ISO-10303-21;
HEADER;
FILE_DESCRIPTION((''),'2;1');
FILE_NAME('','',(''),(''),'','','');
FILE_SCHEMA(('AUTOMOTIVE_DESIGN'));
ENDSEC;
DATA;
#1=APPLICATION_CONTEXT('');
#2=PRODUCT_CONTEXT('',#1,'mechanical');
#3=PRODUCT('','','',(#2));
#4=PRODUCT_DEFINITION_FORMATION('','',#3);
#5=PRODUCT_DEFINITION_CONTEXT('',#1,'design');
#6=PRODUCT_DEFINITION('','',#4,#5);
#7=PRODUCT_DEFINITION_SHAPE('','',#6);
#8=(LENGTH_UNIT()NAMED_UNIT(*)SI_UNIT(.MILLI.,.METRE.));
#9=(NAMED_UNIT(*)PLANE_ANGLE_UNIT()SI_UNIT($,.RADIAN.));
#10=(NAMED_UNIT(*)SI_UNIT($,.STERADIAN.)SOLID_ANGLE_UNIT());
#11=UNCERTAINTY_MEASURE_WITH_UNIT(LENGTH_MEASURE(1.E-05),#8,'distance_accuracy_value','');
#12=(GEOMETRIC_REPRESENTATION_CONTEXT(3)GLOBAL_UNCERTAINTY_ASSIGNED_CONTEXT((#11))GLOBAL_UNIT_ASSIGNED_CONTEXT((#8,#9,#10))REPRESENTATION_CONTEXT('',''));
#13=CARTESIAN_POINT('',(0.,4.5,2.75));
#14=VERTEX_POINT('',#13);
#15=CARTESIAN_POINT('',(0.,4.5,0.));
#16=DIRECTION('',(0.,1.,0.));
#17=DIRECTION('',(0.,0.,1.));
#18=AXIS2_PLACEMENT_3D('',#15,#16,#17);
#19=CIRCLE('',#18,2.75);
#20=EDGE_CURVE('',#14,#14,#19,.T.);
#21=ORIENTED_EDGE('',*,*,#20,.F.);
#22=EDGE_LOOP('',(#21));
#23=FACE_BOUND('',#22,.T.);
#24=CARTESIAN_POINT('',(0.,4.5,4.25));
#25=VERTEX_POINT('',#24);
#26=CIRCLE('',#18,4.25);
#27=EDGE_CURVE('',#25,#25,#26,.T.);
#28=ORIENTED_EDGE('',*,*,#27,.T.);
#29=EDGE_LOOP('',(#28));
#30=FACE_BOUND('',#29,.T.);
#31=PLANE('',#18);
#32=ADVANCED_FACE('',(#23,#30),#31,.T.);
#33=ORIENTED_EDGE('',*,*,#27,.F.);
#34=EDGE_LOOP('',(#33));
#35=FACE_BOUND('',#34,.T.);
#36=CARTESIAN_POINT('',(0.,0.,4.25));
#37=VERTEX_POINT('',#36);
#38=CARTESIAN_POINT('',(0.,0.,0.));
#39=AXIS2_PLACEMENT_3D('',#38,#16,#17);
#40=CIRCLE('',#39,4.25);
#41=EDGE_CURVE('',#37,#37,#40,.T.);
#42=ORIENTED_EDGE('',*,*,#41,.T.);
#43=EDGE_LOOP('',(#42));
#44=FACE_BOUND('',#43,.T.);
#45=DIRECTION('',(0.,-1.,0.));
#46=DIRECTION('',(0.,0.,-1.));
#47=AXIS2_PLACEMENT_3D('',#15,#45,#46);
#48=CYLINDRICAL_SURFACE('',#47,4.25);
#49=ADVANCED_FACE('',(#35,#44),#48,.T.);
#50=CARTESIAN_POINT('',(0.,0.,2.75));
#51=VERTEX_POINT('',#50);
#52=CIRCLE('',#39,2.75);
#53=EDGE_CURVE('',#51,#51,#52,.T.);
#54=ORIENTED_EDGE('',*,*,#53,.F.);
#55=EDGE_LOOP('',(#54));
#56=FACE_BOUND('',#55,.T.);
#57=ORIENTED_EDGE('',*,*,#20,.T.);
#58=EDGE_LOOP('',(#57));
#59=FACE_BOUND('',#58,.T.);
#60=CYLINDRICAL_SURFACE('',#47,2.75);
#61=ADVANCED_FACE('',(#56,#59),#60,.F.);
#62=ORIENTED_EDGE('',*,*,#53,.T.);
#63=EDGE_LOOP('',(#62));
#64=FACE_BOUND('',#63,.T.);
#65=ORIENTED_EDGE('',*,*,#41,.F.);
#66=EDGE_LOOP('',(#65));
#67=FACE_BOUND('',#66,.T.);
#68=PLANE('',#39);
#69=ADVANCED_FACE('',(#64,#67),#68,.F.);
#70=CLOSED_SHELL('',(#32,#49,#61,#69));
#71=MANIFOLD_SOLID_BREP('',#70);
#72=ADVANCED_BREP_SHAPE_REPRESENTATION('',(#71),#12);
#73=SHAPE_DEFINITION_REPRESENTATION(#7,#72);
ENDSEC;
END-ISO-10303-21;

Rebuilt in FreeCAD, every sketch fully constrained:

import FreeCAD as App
import Part
import Sketcher

doc = App.newDocument("Part")
body = doc.addObject("PartDesign::Body", "Body")

# Sketch on XZ plane
sketch1 = body.newObject("Sketcher::SketchObject", "Sketch")
sketch1.AttachmentSupport = (doc.getObject("XZ_Plane"), [""])
sketch1.MapMode = "FlatFace"
sketch1.addGeometry([
    Part.Circle(App.Vector(0, 0, 0), App.Vector(0, 0, 1), 4.2),
    Part.Circle(App.Vector(0, 0, 0), App.Vector(0, 0, 1), 2.8),
], False)
sketch1.addConstraint([
    Sketcher.Constraint("Coincident", 0, 3, -1, 1),
    Sketcher.Constraint("Coincident", 1, 3, -1, 1),
    Sketcher.Constraint("Diameter", 0, 8.5),
    Sketcher.Constraint("Diameter", 1, 5.5),
])
pad1 = body.newObject("PartDesign::Pad", "Pad")
pad1.Profile = sketch1
pad1.Length = 4.5
pad1.Reversed = True

doc.recompute()
